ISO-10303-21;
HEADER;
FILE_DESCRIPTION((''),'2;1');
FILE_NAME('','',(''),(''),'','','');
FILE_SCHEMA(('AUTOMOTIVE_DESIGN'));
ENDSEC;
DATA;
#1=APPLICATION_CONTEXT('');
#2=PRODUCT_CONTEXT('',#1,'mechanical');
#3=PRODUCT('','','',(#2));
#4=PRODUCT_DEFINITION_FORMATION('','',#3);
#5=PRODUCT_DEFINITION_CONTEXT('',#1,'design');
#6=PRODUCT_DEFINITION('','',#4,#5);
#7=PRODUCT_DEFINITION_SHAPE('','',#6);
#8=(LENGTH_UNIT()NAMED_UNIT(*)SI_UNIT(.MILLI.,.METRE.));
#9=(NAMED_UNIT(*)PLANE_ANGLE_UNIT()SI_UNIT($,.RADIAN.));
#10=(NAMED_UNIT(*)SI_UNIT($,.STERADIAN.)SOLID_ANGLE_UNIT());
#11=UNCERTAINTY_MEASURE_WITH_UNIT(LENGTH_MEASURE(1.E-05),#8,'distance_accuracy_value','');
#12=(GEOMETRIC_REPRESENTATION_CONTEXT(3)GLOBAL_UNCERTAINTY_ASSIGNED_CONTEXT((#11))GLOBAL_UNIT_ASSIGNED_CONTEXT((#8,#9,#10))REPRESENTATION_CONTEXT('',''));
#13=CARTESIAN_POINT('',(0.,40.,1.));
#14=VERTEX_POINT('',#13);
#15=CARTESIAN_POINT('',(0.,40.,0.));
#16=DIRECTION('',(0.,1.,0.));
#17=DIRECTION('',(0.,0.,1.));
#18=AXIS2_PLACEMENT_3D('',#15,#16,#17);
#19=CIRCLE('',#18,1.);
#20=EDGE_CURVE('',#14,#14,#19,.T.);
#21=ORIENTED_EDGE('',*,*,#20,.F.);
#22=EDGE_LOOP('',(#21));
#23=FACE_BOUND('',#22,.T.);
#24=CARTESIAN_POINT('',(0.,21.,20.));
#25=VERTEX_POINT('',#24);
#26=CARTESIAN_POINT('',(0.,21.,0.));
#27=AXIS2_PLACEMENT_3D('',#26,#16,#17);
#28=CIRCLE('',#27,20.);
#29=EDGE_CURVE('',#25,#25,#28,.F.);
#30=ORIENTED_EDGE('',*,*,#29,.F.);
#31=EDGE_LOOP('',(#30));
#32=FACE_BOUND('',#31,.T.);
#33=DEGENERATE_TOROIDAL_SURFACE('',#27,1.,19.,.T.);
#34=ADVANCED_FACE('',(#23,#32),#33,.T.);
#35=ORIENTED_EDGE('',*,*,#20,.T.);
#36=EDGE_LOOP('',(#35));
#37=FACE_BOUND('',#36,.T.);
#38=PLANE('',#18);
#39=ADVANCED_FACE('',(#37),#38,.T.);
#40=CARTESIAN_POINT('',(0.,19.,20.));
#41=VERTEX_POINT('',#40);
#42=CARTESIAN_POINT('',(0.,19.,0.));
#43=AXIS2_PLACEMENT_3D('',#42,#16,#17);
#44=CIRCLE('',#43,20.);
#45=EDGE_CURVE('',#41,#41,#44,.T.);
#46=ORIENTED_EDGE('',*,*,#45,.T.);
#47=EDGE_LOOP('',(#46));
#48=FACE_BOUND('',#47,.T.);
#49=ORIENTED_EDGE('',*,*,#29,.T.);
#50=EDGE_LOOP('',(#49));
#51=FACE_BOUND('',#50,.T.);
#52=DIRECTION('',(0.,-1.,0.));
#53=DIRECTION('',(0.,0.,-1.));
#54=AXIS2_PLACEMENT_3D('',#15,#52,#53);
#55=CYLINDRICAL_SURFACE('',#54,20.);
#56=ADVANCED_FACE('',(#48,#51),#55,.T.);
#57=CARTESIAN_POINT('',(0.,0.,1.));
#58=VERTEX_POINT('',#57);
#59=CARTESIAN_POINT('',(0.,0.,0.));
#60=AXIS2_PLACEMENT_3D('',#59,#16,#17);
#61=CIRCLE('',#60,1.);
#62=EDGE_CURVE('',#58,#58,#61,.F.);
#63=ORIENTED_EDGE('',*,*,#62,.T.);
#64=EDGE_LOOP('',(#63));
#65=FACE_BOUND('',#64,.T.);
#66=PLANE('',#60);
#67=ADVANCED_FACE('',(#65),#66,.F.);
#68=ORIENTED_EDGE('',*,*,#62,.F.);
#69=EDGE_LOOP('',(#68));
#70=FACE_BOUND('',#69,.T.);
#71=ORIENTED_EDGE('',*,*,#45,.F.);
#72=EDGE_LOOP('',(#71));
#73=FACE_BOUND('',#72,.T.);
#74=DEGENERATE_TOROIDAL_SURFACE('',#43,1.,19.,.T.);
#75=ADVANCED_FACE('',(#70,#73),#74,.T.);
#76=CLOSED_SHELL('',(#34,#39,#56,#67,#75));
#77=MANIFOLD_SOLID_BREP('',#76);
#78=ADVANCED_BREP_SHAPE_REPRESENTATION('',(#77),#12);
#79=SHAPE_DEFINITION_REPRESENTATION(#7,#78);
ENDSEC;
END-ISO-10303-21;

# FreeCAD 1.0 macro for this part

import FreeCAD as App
import Part
import Sketcher
Q = App.Units.Quantity


def edges_at(feature, points):
    """Names of the edges that pass closest to the given points."""
    edges = feature.Shape.Edges
    near = lambda p: min(range(len(edges)), key=lambda i: edges[i].distToShape(Part.Vertex(*p))[0])
    return sorted({f"Edge{near(p) + 1}" for p in points})

doc = App.newDocument("Part")
body = doc.addObject("PartDesign::Body", "Body")

sketch1 = body.newObject("Sketcher::SketchObject", "Sketch")
sketch1.AttachmentSupport = (doc.getObject("XZ_Plane"), [""])
sketch1.MapMode = "FlatFace"
sketch1.addGeometry(Part.Circle(App.Vector(0, 0, 0), App.Vector(0, 0, 1), 20), False)
sketch1.addConstraint([
    Sketcher.Constraint("Coincident", 0, 3, -1, 1),
    Sketcher.Constraint("Diameter", 0, Q("40 mm")),
])
pad1 = body.newObject("PartDesign::Pad", "Pad")
pad1.Profile = sketch1
pad1.Length = 40
pad1.Reversed = True
doc.recompute()

fillet = body.newObject("PartDesign::Fillet", "Fillet")
fillet.Base = (pad1, edges_at(pad1, [(-20, 0, 0), (-20, 40, 0)]))
fillet.Radius = 19

doc.recompute()
